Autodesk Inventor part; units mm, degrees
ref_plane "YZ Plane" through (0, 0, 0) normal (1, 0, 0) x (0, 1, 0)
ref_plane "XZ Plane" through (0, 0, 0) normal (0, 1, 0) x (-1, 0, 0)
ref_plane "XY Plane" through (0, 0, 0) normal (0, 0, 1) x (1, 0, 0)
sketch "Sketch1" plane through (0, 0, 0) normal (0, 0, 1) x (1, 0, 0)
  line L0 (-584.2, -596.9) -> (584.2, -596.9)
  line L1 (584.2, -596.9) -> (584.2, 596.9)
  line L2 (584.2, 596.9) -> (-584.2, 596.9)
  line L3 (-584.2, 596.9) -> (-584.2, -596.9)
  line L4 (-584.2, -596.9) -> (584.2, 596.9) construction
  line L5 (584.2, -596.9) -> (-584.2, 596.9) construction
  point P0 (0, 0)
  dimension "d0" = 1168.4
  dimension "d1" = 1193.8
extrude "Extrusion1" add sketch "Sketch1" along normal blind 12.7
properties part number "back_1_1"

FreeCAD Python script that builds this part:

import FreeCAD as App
import Part
import Sketcher
Q = App.Units.Quantity

doc = App.newDocument("Part")
body = doc.addObject("PartDesign::Body", "Body")

sketch1 = body.newObject("Sketcher::SketchObject", "Sketch")
sketch1.AttachmentSupport = (doc.getObject("XY_Plane"), [""])
sketch1.MapMode = "FlatFace"
sketch1.addGeometry([
    Part.LineSegment(App.Vector(-584, 597, 0), App.Vector(-584, -597, 0)),
    Part.LineSegment(App.Vector(-584, -597, 0), App.Vector(584, -597, 0)),
    Part.LineSegment(App.Vector(584, -597, 0), App.Vector(584, 597, 0)),
    Part.LineSegment(App.Vector(584, 597, 0), App.Vector(-584, 597, 0)),
], False)
sketch1.addConstraint([
    Sketcher.Constraint("Coincident", 0, 2, 1, 1),
    Sketcher.Constraint("Coincident", 1, 2, 2, 1),
    Sketcher.Constraint("Coincident", 2, 2, 3, 1),
    Sketcher.Constraint("Coincident", 3, 2, 0, 1),
    Sketcher.Constraint("Vertical", 0),
    Sketcher.Constraint("Horizontal", 1),
    Sketcher.Constraint("Vertical", 2),
    Sketcher.Constraint("Horizontal", 3),
    Sketcher.Constraint("Symmetric", 0, 2, 2, 2, -1, 1),
    Sketcher.Constraint("DistanceX", 1, 1, 1, 2, Q("46 in")),
    Sketcher.Constraint("DistanceY", 0, 2, 0, 1, Q("47 in")),
])
pad1 = body.newObject("PartDesign::Pad", "Pad")
pad1.Profile = sketch1
pad1.Length = Q("0.5 in")

doc.recompute()
